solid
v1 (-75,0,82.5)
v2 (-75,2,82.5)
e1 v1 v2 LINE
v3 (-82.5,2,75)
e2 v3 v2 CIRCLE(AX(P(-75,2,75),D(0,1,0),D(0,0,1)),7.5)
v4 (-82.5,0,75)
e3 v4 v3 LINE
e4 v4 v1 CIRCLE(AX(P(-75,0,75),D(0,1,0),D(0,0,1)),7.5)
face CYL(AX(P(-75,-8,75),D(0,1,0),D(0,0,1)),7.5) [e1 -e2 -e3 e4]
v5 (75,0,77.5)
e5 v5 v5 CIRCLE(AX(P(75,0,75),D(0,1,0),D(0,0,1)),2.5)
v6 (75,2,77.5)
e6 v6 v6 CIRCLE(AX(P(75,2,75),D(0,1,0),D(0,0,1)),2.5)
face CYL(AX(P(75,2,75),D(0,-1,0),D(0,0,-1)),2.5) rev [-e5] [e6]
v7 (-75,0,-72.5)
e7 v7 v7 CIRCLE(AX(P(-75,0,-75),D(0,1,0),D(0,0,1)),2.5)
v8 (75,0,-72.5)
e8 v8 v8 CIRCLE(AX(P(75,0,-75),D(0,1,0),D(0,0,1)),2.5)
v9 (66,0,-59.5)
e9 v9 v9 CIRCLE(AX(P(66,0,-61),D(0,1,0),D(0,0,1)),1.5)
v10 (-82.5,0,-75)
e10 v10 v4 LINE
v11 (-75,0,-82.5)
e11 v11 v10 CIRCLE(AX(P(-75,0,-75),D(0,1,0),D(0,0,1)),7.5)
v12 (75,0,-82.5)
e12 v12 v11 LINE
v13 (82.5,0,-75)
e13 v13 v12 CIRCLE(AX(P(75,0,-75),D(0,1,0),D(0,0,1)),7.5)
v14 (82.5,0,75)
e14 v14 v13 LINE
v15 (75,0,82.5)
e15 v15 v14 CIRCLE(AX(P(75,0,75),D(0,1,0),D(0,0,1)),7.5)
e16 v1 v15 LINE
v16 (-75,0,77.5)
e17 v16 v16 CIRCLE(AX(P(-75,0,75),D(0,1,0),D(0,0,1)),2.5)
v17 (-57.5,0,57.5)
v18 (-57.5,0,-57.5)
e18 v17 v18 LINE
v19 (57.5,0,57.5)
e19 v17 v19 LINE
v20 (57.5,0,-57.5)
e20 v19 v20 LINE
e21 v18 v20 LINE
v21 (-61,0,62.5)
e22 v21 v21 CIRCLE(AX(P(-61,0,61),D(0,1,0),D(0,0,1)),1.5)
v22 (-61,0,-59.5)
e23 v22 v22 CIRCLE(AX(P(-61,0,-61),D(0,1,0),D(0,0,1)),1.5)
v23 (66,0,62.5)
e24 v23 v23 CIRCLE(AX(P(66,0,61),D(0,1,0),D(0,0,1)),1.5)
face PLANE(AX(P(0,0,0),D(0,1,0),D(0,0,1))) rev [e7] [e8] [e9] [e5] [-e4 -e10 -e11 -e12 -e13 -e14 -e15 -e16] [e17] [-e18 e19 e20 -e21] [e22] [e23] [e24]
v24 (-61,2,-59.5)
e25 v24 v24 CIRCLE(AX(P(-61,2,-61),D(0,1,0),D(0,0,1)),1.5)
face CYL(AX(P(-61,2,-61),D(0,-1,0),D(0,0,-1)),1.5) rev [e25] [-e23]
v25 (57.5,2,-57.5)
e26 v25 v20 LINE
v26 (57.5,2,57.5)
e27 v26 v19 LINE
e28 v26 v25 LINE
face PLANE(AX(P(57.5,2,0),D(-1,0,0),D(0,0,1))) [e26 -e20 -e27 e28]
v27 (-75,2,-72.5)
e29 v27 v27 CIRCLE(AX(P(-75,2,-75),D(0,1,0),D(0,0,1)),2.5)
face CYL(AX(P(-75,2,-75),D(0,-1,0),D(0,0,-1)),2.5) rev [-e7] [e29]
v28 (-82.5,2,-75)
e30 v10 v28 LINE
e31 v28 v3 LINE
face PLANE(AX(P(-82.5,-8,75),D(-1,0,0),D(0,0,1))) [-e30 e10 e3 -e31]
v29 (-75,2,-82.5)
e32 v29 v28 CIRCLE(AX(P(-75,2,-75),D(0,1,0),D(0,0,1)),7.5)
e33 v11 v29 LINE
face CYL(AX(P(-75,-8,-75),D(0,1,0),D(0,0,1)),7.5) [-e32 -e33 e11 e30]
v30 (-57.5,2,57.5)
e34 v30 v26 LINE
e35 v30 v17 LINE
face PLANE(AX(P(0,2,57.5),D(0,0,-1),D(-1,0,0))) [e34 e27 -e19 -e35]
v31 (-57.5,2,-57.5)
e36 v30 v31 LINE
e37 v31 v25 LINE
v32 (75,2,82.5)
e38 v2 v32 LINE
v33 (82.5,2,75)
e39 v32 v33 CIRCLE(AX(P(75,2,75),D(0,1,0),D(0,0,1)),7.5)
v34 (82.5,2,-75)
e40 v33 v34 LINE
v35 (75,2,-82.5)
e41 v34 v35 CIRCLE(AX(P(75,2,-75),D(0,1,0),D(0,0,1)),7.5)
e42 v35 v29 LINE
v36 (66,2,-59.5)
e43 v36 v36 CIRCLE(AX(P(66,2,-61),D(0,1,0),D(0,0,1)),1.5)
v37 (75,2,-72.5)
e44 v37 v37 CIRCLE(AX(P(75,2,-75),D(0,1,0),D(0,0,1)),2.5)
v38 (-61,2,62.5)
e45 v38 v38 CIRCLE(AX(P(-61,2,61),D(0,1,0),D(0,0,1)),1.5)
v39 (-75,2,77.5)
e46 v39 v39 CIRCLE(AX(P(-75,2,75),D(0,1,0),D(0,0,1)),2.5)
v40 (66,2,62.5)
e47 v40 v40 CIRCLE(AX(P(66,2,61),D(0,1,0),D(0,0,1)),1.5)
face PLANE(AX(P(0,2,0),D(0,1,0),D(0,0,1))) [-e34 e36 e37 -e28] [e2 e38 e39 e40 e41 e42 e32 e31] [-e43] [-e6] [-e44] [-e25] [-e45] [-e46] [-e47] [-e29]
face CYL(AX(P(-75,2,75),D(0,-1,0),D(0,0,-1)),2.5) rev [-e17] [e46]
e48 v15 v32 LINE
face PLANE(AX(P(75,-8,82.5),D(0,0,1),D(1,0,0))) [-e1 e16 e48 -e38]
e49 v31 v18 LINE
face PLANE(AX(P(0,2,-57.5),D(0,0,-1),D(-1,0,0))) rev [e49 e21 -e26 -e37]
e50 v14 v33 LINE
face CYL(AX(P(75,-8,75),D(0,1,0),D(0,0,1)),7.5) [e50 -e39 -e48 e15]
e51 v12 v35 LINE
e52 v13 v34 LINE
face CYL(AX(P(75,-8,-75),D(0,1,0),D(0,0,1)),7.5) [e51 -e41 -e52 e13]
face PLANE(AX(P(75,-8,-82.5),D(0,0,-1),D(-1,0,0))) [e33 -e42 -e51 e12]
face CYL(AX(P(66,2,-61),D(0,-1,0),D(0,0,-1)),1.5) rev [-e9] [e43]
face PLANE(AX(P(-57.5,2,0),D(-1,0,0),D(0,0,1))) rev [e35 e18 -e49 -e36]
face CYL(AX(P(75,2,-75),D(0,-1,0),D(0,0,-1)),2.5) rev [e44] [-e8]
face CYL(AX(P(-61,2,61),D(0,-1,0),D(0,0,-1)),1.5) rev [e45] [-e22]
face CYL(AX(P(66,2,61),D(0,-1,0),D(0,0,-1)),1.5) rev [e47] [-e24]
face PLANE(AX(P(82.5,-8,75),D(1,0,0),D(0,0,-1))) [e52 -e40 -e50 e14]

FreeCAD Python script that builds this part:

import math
import FreeCAD as App
import Part
import Sketcher
from FreeCAD import Vector
Q = App.Units.Quantity

doc = App.newDocument("Part")
params = doc.addObject("Spreadsheet::Sheet", "Params")
for row, (alias, value) in enumerate([
    ("sketch1_diameter", "5 mm"),
    ("sketch1_diameter2", "3 mm"),
    ("sketch1_width", "170 mm"),
    ("sketch1_width2", "115 mm"),
    ("pad1_length", "2 mm"),
    ("sketch2_radius", "7.5 mm"),
    ("sketch2_width", "170 mm"),
    ("sketch2_width2", "150 mm"),
    ("pocket1_length", "10 mm"),
], start=1):
    params.set(f"A{row}", alias)
    params.set(f"B{row}", "=" + value)
    params.setAlias(f"B{row}", alias)

body = doc.addObject("PartDesign::Body", "Body")

# Sketch on XZ plane
sketch1 = doc.addObject("Sketcher::SketchObject", "Sketch")
body.addObject(sketch1)
sketch1.AttachmentSupport = (doc.XZ_Plane, [""])
sketch1.MapMode = "FlatFace"
sketch1.addGeometry([
    Part.LineSegment(Vector(-85, -85, 0), Vector(-85, 85, 0)),  # 0
    Part.LineSegment(Vector(-85, 85, 0), Vector(85, 85, 0)),  # 1
    Part.LineSegment(Vector(85, 85, 0), Vector(85, -85, 0)),  # 2
    Part.LineSegment(Vector(85, -85, 0), Vector(-85, -85, 0)),  # 3
    Part.Circle(Vector(-75, 75, 0), Vector(0, 0, 1), 2.5),  # 4
    Part.Circle(Vector(-61, 61, 0), Vector(0, 0, 1), 1.5),  # 5
    Part.Circle(Vector(75, 75, 0), Vector(0, 0, 1), 2.5),  # 6
    Part.Circle(Vector(66, 61, 0), Vector(0, 0, 1), 1.5),  # 7
    Part.Circle(Vector(-61, -61, 0), Vector(0, 0, 1), 1.5),  # 8
    Part.Circle(Vector(-75, -75, 0), Vector(0, 0, 1), 2.5),  # 9
    Part.LineSegment(Vector(57.5, 57.5, 0), Vector(-57.5, 57.5, 0)),  # 10
    Part.LineSegment(Vector(-57.5, 57.5, 0), Vector(-57.5, -57.5, 0)),  # 11
    Part.LineSegment(Vector(-57.5, -57.5, 0), Vector(57.5, -57.5, 0)),  # 12
    Part.LineSegment(Vector(57.5, -57.5, 0), Vector(57.5, 57.5, 0)),  # 13
    Part.Circle(Vector(66, -61, 0), Vector(0, 0, 1), 1.5),  # 14
    Part.Circle(Vector(75, -75, 0), Vector(0, 0, 1), 2.5),  # 15
], False)
sketch1.addConstraint([
    Sketcher.Constraint("Coincident", 0, 2, 1, 1),
    Sketcher.Constraint("Coincident", 1, 2, 2, 1),
    Sketcher.Constraint("Coincident", 2, 2, 3, 1),
    Sketcher.Constraint("Coincident", 3, 2, 0, 1),
    Sketcher.Constraint("Coincident", 10, 2, 11, 1),
    Sketcher.Constraint("Coincident", 11, 2, 12, 1),
    Sketcher.Constraint("Coincident", 12, 2, 13, 1),
    Sketcher.Constraint("Coincident", 13, 2, 10, 1),
    Sketcher.Constraint("Vertical", 0),
    Sketcher.Constraint("Horizontal", 1),
    Sketcher.Constraint("Vertical", 2),
    Sketcher.Constraint("Horizontal", 3),
    Sketcher.Constraint("Horizontal", 10),
    Sketcher.Constraint("Vertical", 11),
    Sketcher.Constraint("Horizontal", 12),
    Sketcher.Constraint("Vertical", 13),
    Sketcher.Constraint("Equal", 4, 6),
    Sketcher.Constraint("Equal", 5, 7),
    Sketcher.Constraint("Equal", 7, 8),
    Sketcher.Constraint("Equal", 6, 9),
    Sketcher.Constraint("Equal", 8, 14),
    Sketcher.Constraint("Equal", 9, 15),
    Sketcher.Constraint("Symmetric", 6, 3, 9, 3, -1, 1),
    Sketcher.Constraint("Symmetric", 4, 3, 15, 3, -1, 1),
    Sketcher.Constraint("Symmetric", 0, 2, 2, 2, -1, 1),
    Sketcher.Constraint("Symmetric", 10, 2, 12, 2, -1, 1),
    Sketcher.Constraint("Symmetric", 4, 3, 6, 3, -2),
    Sketcher.Constraint("Symmetric", 5, 3, 8, 3, -1),
    Sketcher.Constraint("Symmetric", 7, 3, 14, 3, -1),
    Sketcher.Constraint("Horizontal", 5, 3, 7, 3),
    Sketcher.Constraint("Equal", 3, 0),
    Sketcher.Constraint("Equal", 12, 11),
    Sketcher.Constraint("Diameter", 4, Q("5 mm")),
    Sketcher.Constraint("Diameter", 5, Q("3 mm")),
    Sketcher.Constraint("DistanceX", 1, 1, 1, 2, Q("170 mm")),
    Sketcher.Constraint("DistanceX", 10, 2, 10, 1, Q("115 mm")),
    Sketcher.Constraint("DistanceX", 4, 3, -1, 1, Q("75 mm")),
    Sketcher.Constraint("DistanceY", -1, 1, 4, 3, Q("75 mm")),
    Sketcher.Constraint("DistanceX", 5, 3, -1, 1, Q("61 mm")),
    Sketcher.Constraint("DistanceY", -1, 1, 5, 3, Q("61 mm")),
    Sketcher.Constraint("DistanceX", -1, 1, 7, 3, Q("66 mm")),
])
sketch1.setExpression("Constraints[32]", "Params.sketch1_diameter")
sketch1.setExpression("Constraints[33]", "Params.sketch1_diameter2")
sketch1.setExpression("Constraints[34]", "Params.sketch1_width")
sketch1.setExpression("Constraints[35]", "Params.sketch1_width2")
pad1 = doc.addObject("PartDesign::Pad", "Pad")
body.addObject(pad1)
pad1.Profile = sketch1
pad1.setExpression("Length", "Params.pad1_length")
pad1.Reversed = True

# Sketch on XZ plane
sketch2 = doc.addObject("Sketcher::SketchObject", "Sketch001")
body.addObject(sketch2)
sketch2.AttachmentSupport = (doc.XZ_Plane, [""])
sketch2.MapMode = "FlatFace"
sketch2.AttachmentOffset = App.Placement(Vector(0, 0, -2), App.Rotation())
sketch2.addGeometry([
    Part.LineSegment(Vector(-85, -85, 0), Vector(-85, 85, 0)),  # 0
    Part.LineSegment(Vector(-85, 85, 0), Vector(85, 85, 0)),  # 1
    Part.LineSegment(Vector(85, 85, 0), Vector(85, -85, 0)),  # 2
    Part.LineSegment(Vector(85, -85, 0), Vector(-85, -85, 0)),  # 3
    Part.ArcOfCircle(Part.Circle(Vector(75, 75, 0), Vector(0, 0, 1), 8), math.radians(0), math.radians(90)),  # 4
    Part.LineSegment(Vector(75, 82, 0), Vector(-75, 82, 0)),  # 5
    Part.ArcOfCircle(Part.Circle(Vector(-75, 75, 0), Vector(0, 0, 1), 8), math.radians(90), math.radians(180)),  # 6
    Part.LineSegment(Vector(-82, 75, 0), Vector(-82, -75, 0)),  # 7
    Part.ArcOfCircle(Part.Circle(Vector(-75, -75, 0), Vector(0, 0, 1), 8), math.radians(180), math.radians(270)),  # 8
    Part.LineSegment(Vector(-75, -82, 0), Vector(75, -82, 0)),  # 9
    Part.ArcOfCircle(Part.Circle(Vector(75, -75, 0), Vector(0, 0, 1), 8), math.radians(-90), math.radians(0)),  # 10
    Part.LineSegment(Vector(82, -75, 0), Vector(82, 75, 0)),  # 11
], False)
sketch2.addConstraint([
    Sketcher.Constraint("Coincident", 0, 2, 1, 1),
    Sketcher.Constraint("Coincident", 1, 2, 2, 1),
    Sketcher.Constraint("Coincident", 2, 2, 3, 1),
    Sketcher.Constraint("Coincident", 3, 2, 0, 1),
    Sketcher.Constraint("Tangent", 4, 2, 5, 1),
    Sketcher.Constraint("Tangent", 5, 2, 6, 1),
    Sketcher.Constraint("Tangent", 6, 2, 7, 1),
    Sketcher.Constraint("Tangent", 7, 2, 8, 1),
    Sketcher.Constraint("Tangent", 8, 2, 9, 1),
    Sketcher.Constraint("Tangent", 9, 2, 10, 1),
    Sketcher.Constraint("Tangent", 10, 2, 11, 1),
    Sketcher.Constraint("Tangent", 11, 2, 4, 1),
    Sketcher.Constraint("Vertical", 0),
    Sketcher.Constraint("Horizontal", 1),
    Sketcher.Constraint("Vertical", 2),
    Sketcher.Constraint("Horizontal", 3),
    Sketcher.Constraint("Horizontal", 5),
    Sketcher.Constraint("Vertical", 7),
    Sketcher.Constraint("Horizontal", 9),
    Sketcher.Constraint("Vertical", 11),
    Sketcher.Constraint("Equal", 4, 6),
    Sketcher.Constraint("Equal", 6, 8),
    Sketcher.Constraint("Equal", 8, 10),
    Sketcher.Constraint("Symmetric", 4, 3, 8, 3, -1, 1),
    Sketcher.Constraint("Symmetric", 0, 2, 2, 2, -1, 1),
    Sketcher.Constraint("Equal", 3, 0),
    Sketcher.Constraint("Equal", 9, 7),
    Sketcher.Constraint("Radius", 4, Q("7.5 mm")),
    Sketcher.Constraint("DistanceX", 1, 1, 1, 2, Q("170 mm")),
    Sketcher.Constraint("DistanceX", 5, 2, 5, 1, Q("150 mm")),
])
sketch2.setExpression("Constraints[27]", "Params.sketch2_radius")
sketch2.setExpression("Constraints[28]", "Params.sketch2_width")
sketch2.setExpression("Constraints[29]", "Params.sketch2_width2")
pocket1 = doc.addObject("PartDesign::Pocket", "Pocket")
body.addObject(pocket1)
pocket1.Profile = sketch2
pocket1.setExpression("Length", "Params.pocket1_length")
pocket1.Reversed = True

doc.recompute()
